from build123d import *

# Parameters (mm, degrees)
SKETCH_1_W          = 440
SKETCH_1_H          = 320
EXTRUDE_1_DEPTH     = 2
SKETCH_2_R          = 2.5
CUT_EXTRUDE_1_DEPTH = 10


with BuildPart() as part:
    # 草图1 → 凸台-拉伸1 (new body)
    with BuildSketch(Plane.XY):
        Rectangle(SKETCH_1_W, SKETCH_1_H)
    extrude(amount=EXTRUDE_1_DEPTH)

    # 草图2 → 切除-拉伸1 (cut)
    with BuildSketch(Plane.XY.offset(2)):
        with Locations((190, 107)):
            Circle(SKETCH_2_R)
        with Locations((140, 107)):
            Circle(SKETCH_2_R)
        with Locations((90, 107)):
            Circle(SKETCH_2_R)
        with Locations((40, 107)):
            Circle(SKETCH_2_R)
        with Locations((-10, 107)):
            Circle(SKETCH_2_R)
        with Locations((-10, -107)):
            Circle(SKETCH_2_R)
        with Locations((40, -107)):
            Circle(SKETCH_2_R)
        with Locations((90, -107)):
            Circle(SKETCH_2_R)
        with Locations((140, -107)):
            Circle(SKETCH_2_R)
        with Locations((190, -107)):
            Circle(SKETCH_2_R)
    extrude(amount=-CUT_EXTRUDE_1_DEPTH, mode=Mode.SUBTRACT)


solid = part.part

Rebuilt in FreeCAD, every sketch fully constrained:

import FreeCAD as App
import Part
import Sketcher
Q = App.Units.Quantity

doc = App.newDocument("Part")
body = doc.addObject("PartDesign::Body", "Body")

# Sketch on XY plane
sketch1 = body.newObject("Sketcher::SketchObject", "Sketch")
sketch1.AttachmentSupport = (doc.getObject("XY_Plane"), [""])
sketch1.MapMode = "FlatFace"
sketch1.addGeometry([
    Part.LineSegment(App.Vector(-220, 160, 0), App.Vector(-220, -160, 0)),
    Part.LineSegment(App.Vector(-220, -160, 0), App.Vector(220, -160, 0)),
    Part.LineSegment(App.Vector(220, -160, 0), App.Vector(220, 160, 0)),
    Part.LineSegment(App.Vector(220, 160, 0), App.Vector(-220, 160, 0)),
], False)
sketch1.addConstraint([
    Sketcher.Constraint("Coincident", 0, 2, 1, 1),
    Sketcher.Constraint("Coincident", 1, 2, 2, 1),
    Sketcher.Constraint("Coincident", 2, 2, 3, 1),
    Sketcher.Constraint("Coincident", 3, 2, 0, 1),
    Sketcher.Constraint("Vertical", 0),
    Sketcher.Constraint("Horizontal", 1),
    Sketcher.Constraint("Vertical", 2),
    Sketcher.Constraint("Horizontal", 3),
    Sketcher.Constraint("Symmetric", 0, 2, 2, 2, -1, 1),
    Sketcher.Constraint("DistanceX", 1, 1, 1, 2, Q("440 mm")),
    Sketcher.Constraint("DistanceY", 0, 2, 0, 1, Q("320 mm")),
])
pad1 = body.newObject("PartDesign::Pad", "Pad")
pad1.Profile = sketch1
pad1.Length = 2

# Sketch on XY plane
sketch2 = body.newObject("Sketcher::SketchObject", "Sketch001")
sketch2.AttachmentSupport = (doc.getObject("XY_Plane"), [""])
sketch2.MapMode = "FlatFace"
sketch2.AttachmentOffset = App.Placement(App.Vector(0, 0, 2), App.Rotation())
sketch2.addGeometry([
    Part.Circle(App.Vector(190, 107, 0), App.Vector(0, 0, 1), 2.5),  # 0
    Part.Circle(App.Vector(140, 107, 0), App.Vector(0, 0, 1), 2.5),  # 1
    Part.Circle(App.Vector(90, 107, 0), App.Vector(0, 0, 1), 2.5),  # 2
    Part.Circle(App.Vector(40, 107, 0), App.Vector(0, 0, 1), 2.5),  # 3
    Part.Circle(App.Vector(-10, 107, 0), App.Vector(0, 0, 1), 2.5),  # 4
    Part.Circle(App.Vector(-10, -107, 0), App.Vector(0, 0, 1), 2.5),  # 5
    Part.Circle(App.Vector(40, -107, 0), App.Vector(0, 0, 1), 2.5),  # 6
    Part.Circle(App.Vector(90, -107, 0), App.Vector(0, 0, 1), 2.5),  # 7
    Part.Circle(App.Vector(140, -107, 0), App.Vector(0, 0, 1), 2.5),  # 8
    Part.Circle(App.Vector(190, -107, 0), App.Vector(0, 0, 1), 2.5),  # 9
], False)
sketch2.addConstraint([
    Sketcher.Constraint("Equal", 0, 1),
    Sketcher.Constraint("Equal", 1, 2),
    Sketcher.Constraint("Equal", 2, 3),
    Sketcher.Constraint("Equal", 3, 4),
    Sketcher.Constraint("Equal", 4, 5),
    Sketcher.Constraint("Equal", 5, 6),
    Sketcher.Constraint("Equal", 6, 7),
    Sketcher.Constraint("Equal", 7, 8),
    Sketcher.Constraint("Equal", 8, 9),
    Sketcher.Constraint("Symmetric", 4, 3, 5, 3, -1),
    Sketcher.Constraint("Symmetric", 3, 3, 6, 3, -1),
    Sketcher.Constraint("Symmetric", 2, 3, 7, 3, -1),
    Sketcher.Constraint("Symmetric", 1, 3, 8, 3, -1),
    Sketcher.Constraint("Symmetric", 0, 3, 9, 3, -1),
    Sketcher.Constraint("Horizontal", 0, 3, 1, 3),
    Sketcher.Constraint("Horizontal", 1, 3, 2, 3),
    Sketcher.Constraint("Horizontal", 2, 3, 3, 3),
    Sketcher.Constraint("Horizontal", 3, 3, 4, 3),
    Sketcher.Constraint("Diameter", 0, Q("5 mm")),
    Sketcher.Constraint("DistanceX", -1, 1, 0, 3, Q("190 mm")),
    Sketcher.Constraint("DistanceY", -1, 1, 0, 3, Q("107 mm")),
    Sketcher.Constraint("DistanceX", -1, 1, 1, 3, Q("140 mm")),
    Sketcher.Constraint("DistanceX", -1, 1, 2, 3, Q("90 mm")),
    Sketcher.Constraint("DistanceX", -1, 1, 3, 3, Q("40 mm")),
    Sketcher.Constraint("DistanceX", 4, 3, -1, 1, Q("10 mm")),
])
pocket1 = body.newObject("PartDesign::Pocket", "Pocket")
pocket1.Profile = sketch2
pocket1.Length = 10

doc.recompute()
